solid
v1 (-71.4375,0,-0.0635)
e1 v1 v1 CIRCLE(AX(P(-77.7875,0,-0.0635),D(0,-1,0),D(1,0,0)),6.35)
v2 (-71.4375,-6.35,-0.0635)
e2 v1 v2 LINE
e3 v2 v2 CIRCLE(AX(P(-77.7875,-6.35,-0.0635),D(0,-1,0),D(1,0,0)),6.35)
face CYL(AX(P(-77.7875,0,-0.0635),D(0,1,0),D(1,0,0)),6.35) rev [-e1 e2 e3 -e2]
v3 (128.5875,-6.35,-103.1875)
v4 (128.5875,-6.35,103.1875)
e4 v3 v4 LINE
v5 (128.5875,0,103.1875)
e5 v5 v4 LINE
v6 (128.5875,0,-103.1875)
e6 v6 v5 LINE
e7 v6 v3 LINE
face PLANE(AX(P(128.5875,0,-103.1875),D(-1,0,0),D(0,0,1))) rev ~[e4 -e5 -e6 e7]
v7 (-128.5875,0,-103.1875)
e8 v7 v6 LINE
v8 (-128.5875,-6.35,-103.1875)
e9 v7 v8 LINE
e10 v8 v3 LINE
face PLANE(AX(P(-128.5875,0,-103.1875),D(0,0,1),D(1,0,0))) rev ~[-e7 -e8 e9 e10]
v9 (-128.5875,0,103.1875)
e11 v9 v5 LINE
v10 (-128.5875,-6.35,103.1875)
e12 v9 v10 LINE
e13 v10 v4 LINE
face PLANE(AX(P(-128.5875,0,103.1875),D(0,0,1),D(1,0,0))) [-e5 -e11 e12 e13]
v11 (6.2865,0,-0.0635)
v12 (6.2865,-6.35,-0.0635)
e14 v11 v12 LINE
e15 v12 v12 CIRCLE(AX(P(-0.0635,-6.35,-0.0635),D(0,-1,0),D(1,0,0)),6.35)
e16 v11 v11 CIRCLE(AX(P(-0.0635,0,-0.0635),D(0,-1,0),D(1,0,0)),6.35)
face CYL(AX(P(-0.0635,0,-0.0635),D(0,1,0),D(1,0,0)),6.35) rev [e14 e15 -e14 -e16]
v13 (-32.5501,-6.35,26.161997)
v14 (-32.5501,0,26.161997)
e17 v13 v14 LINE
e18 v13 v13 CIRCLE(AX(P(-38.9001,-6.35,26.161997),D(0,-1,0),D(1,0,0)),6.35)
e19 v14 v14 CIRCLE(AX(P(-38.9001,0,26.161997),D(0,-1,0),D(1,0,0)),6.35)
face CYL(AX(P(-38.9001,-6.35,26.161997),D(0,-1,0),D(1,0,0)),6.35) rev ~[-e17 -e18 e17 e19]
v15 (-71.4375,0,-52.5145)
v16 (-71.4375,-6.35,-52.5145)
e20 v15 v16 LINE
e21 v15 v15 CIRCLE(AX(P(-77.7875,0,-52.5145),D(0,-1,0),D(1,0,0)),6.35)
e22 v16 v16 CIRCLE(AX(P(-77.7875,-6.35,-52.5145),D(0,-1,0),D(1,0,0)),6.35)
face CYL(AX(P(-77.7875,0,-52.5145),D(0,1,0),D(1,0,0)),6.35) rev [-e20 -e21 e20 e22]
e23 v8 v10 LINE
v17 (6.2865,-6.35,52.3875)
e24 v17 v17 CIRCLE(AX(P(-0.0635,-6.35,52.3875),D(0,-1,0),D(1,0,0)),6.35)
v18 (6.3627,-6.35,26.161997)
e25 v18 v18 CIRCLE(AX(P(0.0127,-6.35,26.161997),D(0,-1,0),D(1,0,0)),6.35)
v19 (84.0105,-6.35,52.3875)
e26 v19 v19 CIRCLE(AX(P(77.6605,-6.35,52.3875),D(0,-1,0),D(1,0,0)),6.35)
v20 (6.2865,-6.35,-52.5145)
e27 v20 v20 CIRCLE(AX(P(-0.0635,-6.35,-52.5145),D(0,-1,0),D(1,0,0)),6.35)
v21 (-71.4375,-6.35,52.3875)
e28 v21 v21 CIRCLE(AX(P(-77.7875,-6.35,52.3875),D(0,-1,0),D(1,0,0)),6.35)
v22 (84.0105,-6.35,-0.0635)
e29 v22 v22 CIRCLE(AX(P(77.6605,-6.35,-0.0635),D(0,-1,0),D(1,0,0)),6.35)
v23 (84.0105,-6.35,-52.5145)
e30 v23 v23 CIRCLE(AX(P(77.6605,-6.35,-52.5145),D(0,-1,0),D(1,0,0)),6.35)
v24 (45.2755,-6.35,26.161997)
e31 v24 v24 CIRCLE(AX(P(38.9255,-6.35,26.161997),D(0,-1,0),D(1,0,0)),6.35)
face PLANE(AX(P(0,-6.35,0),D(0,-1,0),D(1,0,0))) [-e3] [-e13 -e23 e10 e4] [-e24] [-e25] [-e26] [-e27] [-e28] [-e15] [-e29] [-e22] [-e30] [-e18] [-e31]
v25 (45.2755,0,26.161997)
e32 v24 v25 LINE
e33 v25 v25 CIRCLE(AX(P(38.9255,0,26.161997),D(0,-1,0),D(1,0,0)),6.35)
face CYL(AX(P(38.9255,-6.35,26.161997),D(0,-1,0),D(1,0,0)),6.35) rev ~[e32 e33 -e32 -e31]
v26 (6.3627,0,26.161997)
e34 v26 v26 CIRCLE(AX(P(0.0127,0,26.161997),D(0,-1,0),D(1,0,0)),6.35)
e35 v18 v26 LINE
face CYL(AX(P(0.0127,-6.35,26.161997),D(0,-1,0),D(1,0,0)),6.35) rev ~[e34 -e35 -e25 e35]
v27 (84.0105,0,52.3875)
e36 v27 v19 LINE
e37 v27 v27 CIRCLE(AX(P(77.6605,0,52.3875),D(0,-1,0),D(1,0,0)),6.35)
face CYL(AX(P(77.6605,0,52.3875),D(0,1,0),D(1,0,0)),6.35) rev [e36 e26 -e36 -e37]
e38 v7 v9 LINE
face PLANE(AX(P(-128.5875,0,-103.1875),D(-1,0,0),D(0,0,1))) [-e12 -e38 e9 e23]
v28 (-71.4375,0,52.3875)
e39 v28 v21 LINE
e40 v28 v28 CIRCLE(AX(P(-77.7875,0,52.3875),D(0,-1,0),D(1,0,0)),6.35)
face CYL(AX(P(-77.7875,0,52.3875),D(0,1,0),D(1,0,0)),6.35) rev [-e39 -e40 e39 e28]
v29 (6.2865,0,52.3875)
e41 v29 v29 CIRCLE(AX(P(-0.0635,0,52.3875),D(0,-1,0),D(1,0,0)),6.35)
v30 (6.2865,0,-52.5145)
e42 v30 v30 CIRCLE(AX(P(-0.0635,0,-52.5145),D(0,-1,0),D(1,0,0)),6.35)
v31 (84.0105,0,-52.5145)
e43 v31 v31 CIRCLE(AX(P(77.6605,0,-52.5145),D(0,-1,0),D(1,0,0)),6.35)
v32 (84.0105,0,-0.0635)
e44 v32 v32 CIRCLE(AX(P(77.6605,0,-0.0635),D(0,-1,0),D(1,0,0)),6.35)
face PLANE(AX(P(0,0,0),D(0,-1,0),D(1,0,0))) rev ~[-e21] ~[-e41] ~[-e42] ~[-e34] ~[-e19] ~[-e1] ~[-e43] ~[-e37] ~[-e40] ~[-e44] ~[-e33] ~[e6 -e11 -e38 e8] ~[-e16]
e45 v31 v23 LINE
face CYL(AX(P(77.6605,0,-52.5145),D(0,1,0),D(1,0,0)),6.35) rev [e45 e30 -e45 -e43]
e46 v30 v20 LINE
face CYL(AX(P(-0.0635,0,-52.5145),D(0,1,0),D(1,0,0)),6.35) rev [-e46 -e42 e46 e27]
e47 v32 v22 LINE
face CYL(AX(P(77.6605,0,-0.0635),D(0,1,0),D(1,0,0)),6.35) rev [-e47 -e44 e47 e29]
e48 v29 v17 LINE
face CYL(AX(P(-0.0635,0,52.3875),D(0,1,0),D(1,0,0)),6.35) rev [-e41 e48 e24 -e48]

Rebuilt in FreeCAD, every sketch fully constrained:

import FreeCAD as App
import Part
import Sketcher
from FreeCAD import Vector
Q = App.Units.Quantity

doc = App.newDocument("Part")
params = doc.addObject("Spreadsheet::Sheet", "Params")
for row, (alias, value) in enumerate([
    ("sketch1_diameter", "0.5 in"),
    ("sketch1_width", "10.125 in"),
    ("sketch1_height", "8.125 in"),
    ("pad1_length", "0.25 in"),
    ("sketch2_diameter", "0.5 in"),
    ("pocket1_length", "1 in"),
], start=1):
    params.set(f"A{row}", alias)
    params.set(f"B{row}", "=" + value)
    params.setAlias(f"B{row}", alias)

body = doc.addObject("PartDesign::Body", "Body")

# Sketch on XZ plane
sketch1 = doc.addObject("Sketcher::SketchObject", "Sketch")
body.addObject(sketch1)
sketch1.AttachmentSupport = (doc.XZ_Plane, [""])
sketch1.MapMode = "FlatFace"
sketch1.addGeometry(Part.LineSegment(Vector(-129, 103, 0), Vector(-129, -103, 0)), False)
sketch1.addGeometry(Part.LineSegment(Vector(-129, -103, 0), Vector(129, -103, 0)), False)
sketch1.addGeometry(Part.LineSegment(Vector(129, -103, 0), Vector(129, 103, 0)), False)
sketch1.addGeometry(Part.LineSegment(Vector(129, 103, 0), Vector(-129, 103, 0)), False)
sketch1.addGeometry(Part.Circle(Vector(-78, -53, 0), Vector(0, 0, 1), 6), False)
sketch1.addGeometry(Part.Circle(Vector(-78, 0, 0), Vector(0, 0, 1), 6), False)
sketch1.addGeometry(Part.Circle(Vector(0, -53, 0), Vector(0, 0, 1), 6), False)
sketch1.addGeometry(Part.Circle(Vector(78, -53, 0), Vector(0, 0, 1), 6), False)
sketch1.addGeometry(Part.Circle(Vector(0, 0, 0), Vector(0, 0, 1), 6), False)
sketch1.addGeometry(Part.Circle(Vector(78, 0, 0), Vector(0, 0, 1), 6), False)
sketch1.addGeometry(Part.Circle(Vector(-78, 52, 0), Vector(0, 0, 1), 6), False)
sketch1.addGeometry(Part.Circle(Vector(0, 52, 0), Vector(0, 0, 1), 6), False)
sketch1.addGeometry(Part.Circle(Vector(78, 52, 0), Vector(0, 0, 1), 6), False)
sketch1.addConstraint(Sketcher.Constraint("Coincident", 0, 2, 1, 1))
sketch1.addConstraint(Sketcher.Constraint("Coincident", 1, 2, 2, 1))
sketch1.addConstraint(Sketcher.Constraint("Coincident", 2, 2, 3, 1))
sketch1.addConstraint(Sketcher.Constraint("Coincident", 3, 2, 0, 1))
sketch1.addConstraint(Sketcher.Constraint("Vertical", 0))
sketch1.addConstraint(Sketcher.Constraint("Horizontal", 1))
sketch1.addConstraint(Sketcher.Constraint("Vertical", 2))
sketch1.addConstraint(Sketcher.Constraint("Horizontal", 3))
sketch1.addConstraint(Sketcher.Constraint("Equal", 4, 5))
sketch1.addConstraint(Sketcher.Constraint("Equal", 5, 6))
sketch1.addConstraint(Sketcher.Constraint("Equal", 6, 7))
sketch1.addConstraint(Sketcher.Constraint("Equal", 7, 8))
sketch1.addConstraint(Sketcher.Constraint("Equal", 8, 9))
sketch1.addConstraint(Sketcher.Constraint("Equal", 9, 10))
sketch1.addConstraint(Sketcher.Constraint("Equal", 10, 11))
sketch1.addConstraint(Sketcher.Constraint("Equal", 11, 12))
sketch1.addConstraint(Sketcher.Constraint("Symmetric", 0, 2, 2, 2, -1, 1))
sketch1.addConstraint(Sketcher.Constraint("Horizontal", 4, 3, 6, 3))
sketch1.addConstraint(Sketcher.Constraint("Horizontal", 6, 3, 7, 3))
sketch1.addConstraint(Sketcher.Constraint("Horizontal", 5, 3, 8, 3))
sketch1.addConstraint(Sketcher.Constraint("Horizontal", 8, 3, 9, 3))
sketch1.addConstraint(Sketcher.Constraint("Horizontal", 10, 3, 11, 3))
sketch1.addConstraint(Sketcher.Constraint("Horizontal", 11, 3, 12, 3))
sketch1.addConstraint(Sketcher.Constraint("Vertical", 4, 3, 5, 3))
sketch1.addConstraint(Sketcher.Constraint("Vertical", 6, 3, 8, 3))
sketch1.addConstraint(Sketcher.Constraint("Vertical", 7, 3, 9, 3))
sketch1.addConstraint(Sketcher.Constraint("Vertical", 5, 3, 10, 3))
sketch1.addConstraint(Sketcher.Constraint("Vertical", 8, 3, 11, 3))
sketch1.addConstraint(Sketcher.Constraint("Vertical", 9, 3, 12, 3))
sketch1.addConstraint(Sketcher.Constraint("Diameter", 4, Q("0.5 in")))
sketch1.addConstraint(Sketcher.Constraint("DistanceX", 0, 2, 4, 3, Q("2 in")))
sketch1.addConstraint(Sketcher.Constraint("DistanceY", 12, 3, 2, 2, Q("2 in")))
sketch1.addConstraint(Sketcher.Constraint("DistanceX", 1, 1, 1, 2, Q("10.125 in")))
sketch1.addConstraint(Sketcher.Constraint("DistanceY", 0, 2, 0, 1, Q("8.125 in")))
sketch1.addConstraint(Sketcher.Constraint("DistanceX", 4, 3, 6, 3, Q("3.06 in")))
sketch1.addConstraint(Sketcher.Constraint("DistanceX", 6, 3, 7, 3, Q("3.06 in")))
sketch1.addConstraint(Sketcher.Constraint("DistanceY", 4, 3, 10, 3, Q("4.13 in")))
sketch1.addConstraint(Sketcher.Constraint("DistanceY", 0, 2, 5, 3, Q("4.06 in")))
sketch1.setExpression("Constraints[29]", "Params.sketch1_diameter")
sketch1.setExpression("Constraints[32]", "Params.sketch1_width")
sketch1.setExpression("Constraints[33]", "Params.sketch1_height")
pad1 = doc.addObject("PartDesign::Pad", "Pad")
body.addObject(pad1)
pad1.Profile = sketch1
pad1.setExpression("Length", "Params.pad1_length")

# Sketch on XZ plane
sketch2 = doc.addObject("Sketcher::SketchObject", "Sketch001")
body.addObject(sketch2)
sketch2.AttachmentSupport = (doc.XZ_Plane, [""])
sketch2.MapMode = "FlatFace"
sketch2.AttachmentOffset = App.Placement(Vector(0, 0, 0.25 * 25.4), App.Rotation())
sketch2.addGeometry(Part.Circle(Vector(-39, 26, 0), Vector(0, 0, 1), 6), False)
sketch2.addGeometry(Part.Circle(Vector(0, 26, 0), Vector(0, 0, 1), 6), False)
sketch2.addGeometry(Part.Circle(Vector(39, 26, 0), Vector(0, 0, 1), 6), False)
sketch2.addConstraint(Sketcher.Constraint("Equal", 0, 1))
sketch2.addConstraint(Sketcher.Constraint("Equal", 1, 2))
sketch2.addConstraint(Sketcher.Constraint("Horizontal", 0, 3, 1, 3))
sketch2.addConstraint(Sketcher.Constraint("Horizontal", 1, 3, 2, 3))
sketch2.addConstraint(Sketcher.Constraint("Diameter", 0, Q("0.5 in")))
sketch2.addConstraint(Sketcher.Constraint("DistanceY", -1, 1, 0, 3, Q("1.0299999 in")))
sketch2.addConstraint(Sketcher.Constraint("DistanceX", 0, 3, 1, 3, Q("1.532 in")))
sketch2.addConstraint(Sketcher.Constraint("DistanceX", 1, 3, 2, 3, Q("1.532 in")))
sketch2.addConstraint(Sketcher.Constraint("DistanceX", 0, 3, -1, 1, Q("1.5315 in")))
sketch2.setExpression("Constraints[4]", "Params.sketch2_diameter")
pocket1 = doc.addObject("PartDesign::Pocket", "Pocket")
body.addObject(pocket1)
pocket1.Profile = sketch2
pocket1.setExpression("Length", "Params.pocket1_length")

doc.recompute()
